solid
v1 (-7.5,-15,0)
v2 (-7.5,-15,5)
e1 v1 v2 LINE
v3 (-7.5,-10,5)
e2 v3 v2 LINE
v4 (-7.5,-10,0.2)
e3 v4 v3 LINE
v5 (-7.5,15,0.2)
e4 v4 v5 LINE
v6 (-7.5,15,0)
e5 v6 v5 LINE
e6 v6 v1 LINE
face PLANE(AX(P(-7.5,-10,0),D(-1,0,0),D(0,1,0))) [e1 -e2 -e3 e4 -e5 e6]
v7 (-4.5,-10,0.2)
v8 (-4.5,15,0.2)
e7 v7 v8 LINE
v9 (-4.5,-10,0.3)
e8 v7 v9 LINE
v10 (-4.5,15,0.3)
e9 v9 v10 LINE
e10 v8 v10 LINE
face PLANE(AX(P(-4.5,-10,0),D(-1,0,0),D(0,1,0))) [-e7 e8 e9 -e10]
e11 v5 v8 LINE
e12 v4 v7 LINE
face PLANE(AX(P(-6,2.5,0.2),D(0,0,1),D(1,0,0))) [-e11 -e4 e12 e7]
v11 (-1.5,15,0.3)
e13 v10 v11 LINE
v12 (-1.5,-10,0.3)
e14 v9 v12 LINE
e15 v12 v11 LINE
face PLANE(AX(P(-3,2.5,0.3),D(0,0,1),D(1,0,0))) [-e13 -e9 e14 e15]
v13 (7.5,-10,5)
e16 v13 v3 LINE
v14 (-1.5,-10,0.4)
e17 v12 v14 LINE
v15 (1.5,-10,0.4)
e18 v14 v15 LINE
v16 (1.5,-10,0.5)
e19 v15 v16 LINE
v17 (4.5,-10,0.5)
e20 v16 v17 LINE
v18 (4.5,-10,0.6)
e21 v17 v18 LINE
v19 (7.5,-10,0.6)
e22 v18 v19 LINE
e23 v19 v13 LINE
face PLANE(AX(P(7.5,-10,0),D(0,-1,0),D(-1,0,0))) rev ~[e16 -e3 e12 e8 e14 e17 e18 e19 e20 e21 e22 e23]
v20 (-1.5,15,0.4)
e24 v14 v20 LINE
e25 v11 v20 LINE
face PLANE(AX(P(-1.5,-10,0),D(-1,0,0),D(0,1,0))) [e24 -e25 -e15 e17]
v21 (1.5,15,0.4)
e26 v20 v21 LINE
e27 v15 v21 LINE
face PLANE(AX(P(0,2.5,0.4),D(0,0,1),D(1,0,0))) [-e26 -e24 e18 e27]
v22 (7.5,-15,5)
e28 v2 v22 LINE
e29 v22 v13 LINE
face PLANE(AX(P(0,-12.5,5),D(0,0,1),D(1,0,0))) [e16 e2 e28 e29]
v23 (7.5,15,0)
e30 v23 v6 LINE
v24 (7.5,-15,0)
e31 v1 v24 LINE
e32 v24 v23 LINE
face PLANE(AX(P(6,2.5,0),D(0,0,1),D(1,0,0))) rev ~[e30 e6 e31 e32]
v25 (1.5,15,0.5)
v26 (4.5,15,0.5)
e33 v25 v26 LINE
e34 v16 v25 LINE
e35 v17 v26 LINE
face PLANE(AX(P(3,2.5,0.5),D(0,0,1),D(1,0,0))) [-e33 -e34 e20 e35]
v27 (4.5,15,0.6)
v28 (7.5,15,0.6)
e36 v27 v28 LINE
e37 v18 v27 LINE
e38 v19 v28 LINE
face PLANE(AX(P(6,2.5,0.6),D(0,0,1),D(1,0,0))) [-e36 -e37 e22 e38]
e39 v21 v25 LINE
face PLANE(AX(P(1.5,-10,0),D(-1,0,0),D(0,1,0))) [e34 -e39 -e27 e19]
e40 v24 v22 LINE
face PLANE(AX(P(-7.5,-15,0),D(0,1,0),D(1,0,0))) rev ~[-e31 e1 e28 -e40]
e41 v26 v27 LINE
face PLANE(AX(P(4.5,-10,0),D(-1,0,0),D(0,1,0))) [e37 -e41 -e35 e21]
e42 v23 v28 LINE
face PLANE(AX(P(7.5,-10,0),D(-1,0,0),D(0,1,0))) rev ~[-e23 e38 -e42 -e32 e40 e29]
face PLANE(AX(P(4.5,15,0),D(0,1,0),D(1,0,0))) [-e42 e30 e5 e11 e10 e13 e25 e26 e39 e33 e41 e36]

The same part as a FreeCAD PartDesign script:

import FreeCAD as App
import Part
import Sketcher
Q = App.Units.Quantity

doc = App.newDocument("Part")
params = doc.addObject("Spreadsheet::Sheet", "Params")
for row, (alias, value) in enumerate([
    ("sketch1_width", "15 mm"),
    ("sketch1_height", "5 mm"),
    ("pad1_length", "5 mm"),
    ("sketch2_width", "3 mm"),
    ("sketch2_height", "25 mm"),
    ("pad2_length", "0.2 mm"),
    ("sketch3_width", "3 mm"),
    ("sketch3_height", "25 mm"),
    ("pad3_length", "0.3 mm"),
    ("sketch4_width", "3 mm"),
    ("sketch4_height", "25 mm"),
    ("pad4_length", "0.4 mm"),
    ("sketch5_width", "3 mm"),
    ("sketch5_height", "25 mm"),
    ("pad5_length", "0.5 mm"),
    ("sketch6_width", "3 mm"),
    ("sketch6_height", "25 mm"),
    ("pad6_length", "0.6 mm"),
], start=1):
    params.set(f"A{row}", alias)
    params.set(f"B{row}", "=" + value)
    params.setAlias(f"B{row}", alias)

body = doc.addObject("PartDesign::Body", "Body")

# Sketch on XY plane
sketch1 = doc.addObject("Sketcher::SketchObject", "Sketch")
body.addObject(sketch1)
sketch1.AttachmentSupport = (doc.XY_Plane, [""])
sketch1.MapMode = "FlatFace"
sketch1.addGeometry(Part.LineSegment(App.Vector(-8, -15, 0), App.Vector(8, -15, 0)), False)
sketch1.addGeometry(Part.LineSegment(App.Vector(8, -15, 0), App.Vector(8, -10, 0)), False)
sketch1.addGeometry(Part.LineSegment(App.Vector(8, -10, 0), App.Vector(-8, -10, 0)), False)
sketch1.addGeometry(Part.LineSegment(App.Vector(-8, -10, 0), App.Vector(-8, -15, 0)), False)
sketch1.addConstraint(Sketcher.Constraint("Coincident", 0, 2, 1, 1))
sketch1.addConstraint(Sketcher.Constraint("Coincident", 1, 2, 2, 1))
sketch1.addConstraint(Sketcher.Constraint("Coincident", 2, 2, 3, 1))
sketch1.addConstraint(Sketcher.Constraint("Coincident", 3, 2, 0, 1))
sketch1.addConstraint(Sketcher.Constraint("Horizontal", 0))
sketch1.addConstraint(Sketcher.Constraint("Vertical", 1))
sketch1.addConstraint(Sketcher.Constraint("Horizontal", 2))
sketch1.addConstraint(Sketcher.Constraint("Vertical", 3))
sketch1.addConstraint(Sketcher.Constraint("DistanceX", 0, 1, 0, 2, Q("15 mm")))
sketch1.addConstraint(Sketcher.Constraint("DistanceY", 1, 1, 1, 2, Q("5 mm")))
sketch1.addConstraint(Sketcher.Constraint("DistanceY", 0, 2, -1, 1, Q("15 mm")))
sketch1.addConstraint(Sketcher.Constraint("DistanceX", -1, 1, 0, 2, Q("7.5 mm")))
sketch1.setExpression("Constraints[8]", "Params.sketch1_width")
sketch1.setExpression("Constraints[9]", "Params.sketch1_height")
pad1 = doc.addObject("PartDesign::Pad", "Pad")
body.addObject(pad1)
pad1.Profile = sketch1
pad1.setExpression("Length", "Params.pad1_length")

# Sketch on XY plane
sketch2 = doc.addObject("Sketcher::SketchObject", "Sketch001")
body.addObject(sketch2)
sketch2.AttachmentSupport = (doc.XY_Plane, [""])
sketch2.MapMode = "FlatFace"
sketch2.addGeometry(Part.LineSegment(App.Vector(-7.5, 15, 0), App.Vector(-7.5, -10, 0)), False)
sketch2.addGeometry(Part.LineSegment(App.Vector(-7.5, -10, 0), App.Vector(-4.5, -10, 0)), False)
sketch2.addGeometry(Part.LineSegment(App.Vector(-4.5, -10, 0), App.Vector(-4.5, 15, 0)), False)
sketch2.addGeometry(Part.LineSegment(App.Vector(-4.5, 15, 0), App.Vector(-7.5, 15, 0)), False)
sketch2.addConstraint(Sketcher.Constraint("Coincident", 0, 2, 1, 1))
sketch2.addConstraint(Sketcher.Constraint("Coincident", 1, 2, 2, 1))
sketch2.addConstraint(Sketcher.Constraint("Coincident", 2, 2, 3, 1))
sketch2.addConstraint(Sketcher.Constraint("Coincident", 3, 2, 0, 1))
sketch2.addConstraint(Sketcher.Constraint("Vertical", 0))
sketch2.addConstraint(Sketcher.Constraint("Horizontal", 1))
sketch2.addConstraint(Sketcher.Constraint("Vertical", 2))
sketch2.addConstraint(Sketcher.Constraint("Horizontal", 3))
sketch2.addConstraint(Sketcher.Constraint("DistanceX", 1, 1, 1, 2, Q("3 mm")))
sketch2.addConstraint(Sketcher.Constraint("DistanceY", 0, 2, 0, 1, Q("25 mm")))
sketch2.addConstraint(Sketcher.Constraint("DistanceY", 0, 2, -1, 1, Q("10 mm")))
sketch2.addConstraint(Sketcher.Constraint("DistanceX", 0, 2, -1, 1, Q("7.5 mm")))
sketch2.setExpression("Constraints[8]", "Params.sketch2_width")
sketch2.setExpression("Constraints[9]", "Params.sketch2_height")
pad2 = doc.addObject("PartDesign::Pad", "Pad001")
body.addObject(pad2)
pad2.Profile = sketch2
pad2.setExpression("Length", "Params.pad2_length")

# Sketch on XY plane
sketch3 = doc.addObject("Sketcher::SketchObject", "Sketch002")
body.addObject(sketch3)
sketch3.AttachmentSupport = (doc.XY_Plane, [""])
sketch3.MapMode = "FlatFace"
sketch3.addGeometry(Part.LineSegment(App.Vector(-4.5, 15, 0), App.Vector(-4.5, -10, 0)), False)
sketch3.addGeometry(Part.LineSegment(App.Vector(-4.5, -10, 0), App.Vector(-1.5, -10, 0)), False)
sketch3.addGeometry(Part.LineSegment(App.Vector(-1.5, -10, 0), App.Vector(-1.5, 15, 0)), False)
sketch3.addGeometry(Part.LineSegment(App.Vector(-1.5, 15, 0), App.Vector(-4.5, 15, 0)), False)
sketch3.addConstraint(Sketcher.Constraint("Coincident", 0, 2, 1, 1))
sketch3.addConstraint(Sketcher.Constraint("Coincident", 1, 2, 2, 1))
sketch3.addConstraint(Sketcher.Constraint("Coincident", 2, 2, 3, 1))
sketch3.addConstraint(Sketcher.Constraint("Coincident", 3, 2, 0, 1))
sketch3.addConstraint(Sketcher.Constraint("Vertical", 0))
sketch3.addConstraint(Sketcher.Constraint("Horizontal", 1))
sketch3.addConstraint(Sketcher.Constraint("Vertical", 2))
sketch3.addConstraint(Sketcher.Constraint("Horizontal", 3))
sketch3.addConstraint(Sketcher.Constraint("DistanceX", 1, 1, 1, 2, Q("3 mm")))
sketch3.addConstraint(Sketcher.Constraint("DistanceY", 0, 2, 0, 1, Q("25 mm")))
sketch3.addConstraint(Sketcher.Constraint("DistanceY", 0, 2, -1, 1, Q("10 mm")))
sketch3.addConstraint(Sketcher.Constraint("DistanceX", 0, 2, -1, 1, Q("4.5 mm")))
sketch3.setExpression("Constraints[8]", "Params.sketch3_width")
sketch3.setExpression("Constraints[9]", "Params.sketch3_height")
pad3 = doc.addObject("PartDesign::Pad", "Pad002")
body.addObject(pad3)
pad3.Profile = sketch3
pad3.setExpression("Length", "Params.pad3_length")

# Sketch on XY plane
sketch4 = doc.addObject("Sketcher::SketchObject", "Sketch003")
body.addObject(sketch4)
sketch4.AttachmentSupport = (doc.XY_Plane, [""])
sketch4.MapMode = "FlatFace"
sketch4.addGeometry(Part.LineSegment(App.Vector(-1.5, 15, 0), App.Vector(-1.5, -10, 0)), False)
sketch4.addGeometry(Part.LineSegment(App.Vector(-1.5, -10, 0), App.Vector(1.5, -10, 0)), False)
sketch4.addGeometry(Part.LineSegment(App.Vector(1.5, -10, 0), App.Vector(1.5, 15, 0)), False)
sketch4.addGeometry(Part.LineSegment(App.Vector(1.5, 15, 0), App.Vector(-1.5, 15, 0)), False)
sketch4.addConstraint(Sketcher.Constraint("Coincident", 0, 2, 1, 1))
sketch4.addConstraint(Sketcher.Constraint("Coincident", 1, 2, 2, 1))
sketch4.addConstraint(Sketcher.Constraint("Coincident", 2, 2, 3, 1))
sketch4.addConstraint(Sketcher.Constraint("Coincident", 3, 2, 0, 1))
sketch4.addConstraint(Sketcher.Constraint("Vertical", 0))
sketch4.addConstraint(Sketcher.Constraint("Horizontal", 1))
sketch4.addConstraint(Sketcher.Constraint("Vertical", 2))
sketch4.addConstraint(Sketcher.Constraint("Horizontal", 3))
sketch4.addConstraint(Sketcher.Constraint("DistanceX", 1, 1, 1, 2, Q("3 mm")))
sketch4.addConstraint(Sketcher.Constraint("DistanceY", 0, 2, 0, 1, Q("25 mm")))
sketch4.addConstraint(Sketcher.Constraint("DistanceY", 0, 2, -1, 1, Q("10 mm")))
sketch4.addConstraint(Sketcher.Constraint("DistanceX", 0, 2, -1, 1, Q("1.5 mm")))
sketch4.setExpression("Constraints[8]", "Params.sketch4_width")
sketch4.setExpression("Constraints[9]", "Params.sketch4_height")
pad4 = doc.addObject("PartDesign::Pad", "Pad003")
body.addObject(pad4)
pad4.Profile = sketch4
pad4.setExpression("Length", "Params.pad4_length")

# Sketch on XY plane
sketch5 = doc.addObject("Sketcher::SketchObject", "Sketch004")
body.addObject(sketch5)
sketch5.AttachmentSupport = (doc.XY_Plane, [""])
sketch5.MapMode = "FlatFace"
sketch5.addGeometry(Part.LineSegment(App.Vector(1.5, 15, 0), App.Vector(1.5, -10, 0)), False)
sketch5.addGeometry(Part.LineSegment(App.Vector(1.5, -10, 0), App.Vector(4.5, -10, 0)), False)
sketch5.addGeometry(Part.LineSegment(App.Vector(4.5, -10, 0), App.Vector(4.5, 15, 0)), False)
sketch5.addGeometry(Part.LineSegment(App.Vector(4.5, 15, 0), App.Vector(1.5, 15, 0)), False)
sketch5.addConstraint(Sketcher.Constraint("Coincident", 0, 2, 1, 1))
sketch5.addConstraint(Sketcher.Constraint("Coincident", 1, 2, 2, 1))
sketch5.addConstraint(Sketcher.Constraint("Coincident", 2, 2, 3, 1))
sketch5.addConstraint(Sketcher.Constraint("Coincident", 3, 2, 0, 1))
sketch5.addConstraint(Sketcher.Constraint("Vertical", 0))
sketch5.addConstraint(Sketcher.Constraint("Horizontal", 1))
sketch5.addConstraint(Sketcher.Constraint("Vertical", 2))
sketch5.addConstraint(Sketcher.Constraint("Horizontal", 3))
sketch5.addConstraint(Sketcher.Constraint("DistanceX", 1, 1, 1, 2, Q("3 mm")))
sketch5.addConstraint(Sketcher.Constraint("DistanceY", 0, 2, 0, 1, Q("25 mm")))
sketch5.addConstraint(Sketcher.Constraint("DistanceY", 0, 2, -1, 1, Q("10 mm")))
sketch5.addConstraint(Sketcher.Constraint("DistanceX", -1, 1, 0, 2, Q("1.5 mm")))
sketch5.setExpression("Constraints[8]", "Params.sketch5_width")
sketch5.setExpression("Constraints[9]", "Params.sketch5_height")
pad5 = doc.addObject("PartDesign::Pad", "Pad004")
body.addObject(pad5)
pad5.Profile = sketch5
pad5.setExpression("Length", "Params.pad5_length")

# Sketch on XY plane
sketch6 = doc.addObject("Sketcher::SketchObject", "Sketch005")
body.addObject(sketch6)
sketch6.AttachmentSupport = (doc.XY_Plane, [""])
sketch6.MapMode = "FlatFace"
sketch6.addGeometry(Part.LineSegment(App.Vector(4.5, 15, 0), App.Vector(4.5, -10, 0)), False)
sketch6.addGeometry(Part.LineSegment(App.Vector(4.5, -10, 0), App.Vector(7.5, -10, 0)), False)
sketch6.addGeometry(Part.LineSegment(App.Vector(7.5, -10, 0), App.Vector(7.5, 15, 0)), False)
sketch6.addGeometry(Part.LineSegment(App.Vector(7.5, 15, 0), App.Vector(4.5, 15, 0)), False)
sketch6.addConstraint(Sketcher.Constraint("Coincident", 0, 2, 1, 1))
sketch6.addConstraint(Sketcher.Constraint("Coincident", 1, 2, 2, 1))
sketch6.addConstraint(Sketcher.Constraint("Coincident", 2, 2, 3, 1))
sketch6.addConstraint(Sketcher.Constraint("Coincident", 3, 2, 0, 1))
sketch6.addConstraint(Sketcher.Constraint("Vertical", 0))
sketch6.addConstraint(Sketcher.Constraint("Horizontal", 1))
sketch6.addConstraint(Sketcher.Constraint("Vertical", 2))
sketch6.addConstraint(Sketcher.Constraint("Horizontal", 3))
sketch6.addConstraint(Sketcher.Constraint("DistanceX", 1, 1, 1, 2, Q("3 mm")))
sketch6.addConstraint(Sketcher.Constraint("DistanceY", 0, 2, 0, 1, Q("25 mm")))
sketch6.addConstraint(Sketcher.Constraint("DistanceY", 0, 2, -1, 1, Q("10 mm")))
sketch6.addConstraint(Sketcher.Constraint("DistanceX", -1, 1, 0, 2, Q("4.5 mm")))
sketch6.setExpression("Constraints[8]", "Params.sketch6_width")
sketch6.setExpression("Constraints[9]", "Params.sketch6_height")
pad6 = doc.addObject("PartDesign::Pad", "Pad005")
body.addObject(pad6)
pad6.Profile = sketch6
pad6.setExpression("Length", "Params.pad6_length")

doc.recompute()
